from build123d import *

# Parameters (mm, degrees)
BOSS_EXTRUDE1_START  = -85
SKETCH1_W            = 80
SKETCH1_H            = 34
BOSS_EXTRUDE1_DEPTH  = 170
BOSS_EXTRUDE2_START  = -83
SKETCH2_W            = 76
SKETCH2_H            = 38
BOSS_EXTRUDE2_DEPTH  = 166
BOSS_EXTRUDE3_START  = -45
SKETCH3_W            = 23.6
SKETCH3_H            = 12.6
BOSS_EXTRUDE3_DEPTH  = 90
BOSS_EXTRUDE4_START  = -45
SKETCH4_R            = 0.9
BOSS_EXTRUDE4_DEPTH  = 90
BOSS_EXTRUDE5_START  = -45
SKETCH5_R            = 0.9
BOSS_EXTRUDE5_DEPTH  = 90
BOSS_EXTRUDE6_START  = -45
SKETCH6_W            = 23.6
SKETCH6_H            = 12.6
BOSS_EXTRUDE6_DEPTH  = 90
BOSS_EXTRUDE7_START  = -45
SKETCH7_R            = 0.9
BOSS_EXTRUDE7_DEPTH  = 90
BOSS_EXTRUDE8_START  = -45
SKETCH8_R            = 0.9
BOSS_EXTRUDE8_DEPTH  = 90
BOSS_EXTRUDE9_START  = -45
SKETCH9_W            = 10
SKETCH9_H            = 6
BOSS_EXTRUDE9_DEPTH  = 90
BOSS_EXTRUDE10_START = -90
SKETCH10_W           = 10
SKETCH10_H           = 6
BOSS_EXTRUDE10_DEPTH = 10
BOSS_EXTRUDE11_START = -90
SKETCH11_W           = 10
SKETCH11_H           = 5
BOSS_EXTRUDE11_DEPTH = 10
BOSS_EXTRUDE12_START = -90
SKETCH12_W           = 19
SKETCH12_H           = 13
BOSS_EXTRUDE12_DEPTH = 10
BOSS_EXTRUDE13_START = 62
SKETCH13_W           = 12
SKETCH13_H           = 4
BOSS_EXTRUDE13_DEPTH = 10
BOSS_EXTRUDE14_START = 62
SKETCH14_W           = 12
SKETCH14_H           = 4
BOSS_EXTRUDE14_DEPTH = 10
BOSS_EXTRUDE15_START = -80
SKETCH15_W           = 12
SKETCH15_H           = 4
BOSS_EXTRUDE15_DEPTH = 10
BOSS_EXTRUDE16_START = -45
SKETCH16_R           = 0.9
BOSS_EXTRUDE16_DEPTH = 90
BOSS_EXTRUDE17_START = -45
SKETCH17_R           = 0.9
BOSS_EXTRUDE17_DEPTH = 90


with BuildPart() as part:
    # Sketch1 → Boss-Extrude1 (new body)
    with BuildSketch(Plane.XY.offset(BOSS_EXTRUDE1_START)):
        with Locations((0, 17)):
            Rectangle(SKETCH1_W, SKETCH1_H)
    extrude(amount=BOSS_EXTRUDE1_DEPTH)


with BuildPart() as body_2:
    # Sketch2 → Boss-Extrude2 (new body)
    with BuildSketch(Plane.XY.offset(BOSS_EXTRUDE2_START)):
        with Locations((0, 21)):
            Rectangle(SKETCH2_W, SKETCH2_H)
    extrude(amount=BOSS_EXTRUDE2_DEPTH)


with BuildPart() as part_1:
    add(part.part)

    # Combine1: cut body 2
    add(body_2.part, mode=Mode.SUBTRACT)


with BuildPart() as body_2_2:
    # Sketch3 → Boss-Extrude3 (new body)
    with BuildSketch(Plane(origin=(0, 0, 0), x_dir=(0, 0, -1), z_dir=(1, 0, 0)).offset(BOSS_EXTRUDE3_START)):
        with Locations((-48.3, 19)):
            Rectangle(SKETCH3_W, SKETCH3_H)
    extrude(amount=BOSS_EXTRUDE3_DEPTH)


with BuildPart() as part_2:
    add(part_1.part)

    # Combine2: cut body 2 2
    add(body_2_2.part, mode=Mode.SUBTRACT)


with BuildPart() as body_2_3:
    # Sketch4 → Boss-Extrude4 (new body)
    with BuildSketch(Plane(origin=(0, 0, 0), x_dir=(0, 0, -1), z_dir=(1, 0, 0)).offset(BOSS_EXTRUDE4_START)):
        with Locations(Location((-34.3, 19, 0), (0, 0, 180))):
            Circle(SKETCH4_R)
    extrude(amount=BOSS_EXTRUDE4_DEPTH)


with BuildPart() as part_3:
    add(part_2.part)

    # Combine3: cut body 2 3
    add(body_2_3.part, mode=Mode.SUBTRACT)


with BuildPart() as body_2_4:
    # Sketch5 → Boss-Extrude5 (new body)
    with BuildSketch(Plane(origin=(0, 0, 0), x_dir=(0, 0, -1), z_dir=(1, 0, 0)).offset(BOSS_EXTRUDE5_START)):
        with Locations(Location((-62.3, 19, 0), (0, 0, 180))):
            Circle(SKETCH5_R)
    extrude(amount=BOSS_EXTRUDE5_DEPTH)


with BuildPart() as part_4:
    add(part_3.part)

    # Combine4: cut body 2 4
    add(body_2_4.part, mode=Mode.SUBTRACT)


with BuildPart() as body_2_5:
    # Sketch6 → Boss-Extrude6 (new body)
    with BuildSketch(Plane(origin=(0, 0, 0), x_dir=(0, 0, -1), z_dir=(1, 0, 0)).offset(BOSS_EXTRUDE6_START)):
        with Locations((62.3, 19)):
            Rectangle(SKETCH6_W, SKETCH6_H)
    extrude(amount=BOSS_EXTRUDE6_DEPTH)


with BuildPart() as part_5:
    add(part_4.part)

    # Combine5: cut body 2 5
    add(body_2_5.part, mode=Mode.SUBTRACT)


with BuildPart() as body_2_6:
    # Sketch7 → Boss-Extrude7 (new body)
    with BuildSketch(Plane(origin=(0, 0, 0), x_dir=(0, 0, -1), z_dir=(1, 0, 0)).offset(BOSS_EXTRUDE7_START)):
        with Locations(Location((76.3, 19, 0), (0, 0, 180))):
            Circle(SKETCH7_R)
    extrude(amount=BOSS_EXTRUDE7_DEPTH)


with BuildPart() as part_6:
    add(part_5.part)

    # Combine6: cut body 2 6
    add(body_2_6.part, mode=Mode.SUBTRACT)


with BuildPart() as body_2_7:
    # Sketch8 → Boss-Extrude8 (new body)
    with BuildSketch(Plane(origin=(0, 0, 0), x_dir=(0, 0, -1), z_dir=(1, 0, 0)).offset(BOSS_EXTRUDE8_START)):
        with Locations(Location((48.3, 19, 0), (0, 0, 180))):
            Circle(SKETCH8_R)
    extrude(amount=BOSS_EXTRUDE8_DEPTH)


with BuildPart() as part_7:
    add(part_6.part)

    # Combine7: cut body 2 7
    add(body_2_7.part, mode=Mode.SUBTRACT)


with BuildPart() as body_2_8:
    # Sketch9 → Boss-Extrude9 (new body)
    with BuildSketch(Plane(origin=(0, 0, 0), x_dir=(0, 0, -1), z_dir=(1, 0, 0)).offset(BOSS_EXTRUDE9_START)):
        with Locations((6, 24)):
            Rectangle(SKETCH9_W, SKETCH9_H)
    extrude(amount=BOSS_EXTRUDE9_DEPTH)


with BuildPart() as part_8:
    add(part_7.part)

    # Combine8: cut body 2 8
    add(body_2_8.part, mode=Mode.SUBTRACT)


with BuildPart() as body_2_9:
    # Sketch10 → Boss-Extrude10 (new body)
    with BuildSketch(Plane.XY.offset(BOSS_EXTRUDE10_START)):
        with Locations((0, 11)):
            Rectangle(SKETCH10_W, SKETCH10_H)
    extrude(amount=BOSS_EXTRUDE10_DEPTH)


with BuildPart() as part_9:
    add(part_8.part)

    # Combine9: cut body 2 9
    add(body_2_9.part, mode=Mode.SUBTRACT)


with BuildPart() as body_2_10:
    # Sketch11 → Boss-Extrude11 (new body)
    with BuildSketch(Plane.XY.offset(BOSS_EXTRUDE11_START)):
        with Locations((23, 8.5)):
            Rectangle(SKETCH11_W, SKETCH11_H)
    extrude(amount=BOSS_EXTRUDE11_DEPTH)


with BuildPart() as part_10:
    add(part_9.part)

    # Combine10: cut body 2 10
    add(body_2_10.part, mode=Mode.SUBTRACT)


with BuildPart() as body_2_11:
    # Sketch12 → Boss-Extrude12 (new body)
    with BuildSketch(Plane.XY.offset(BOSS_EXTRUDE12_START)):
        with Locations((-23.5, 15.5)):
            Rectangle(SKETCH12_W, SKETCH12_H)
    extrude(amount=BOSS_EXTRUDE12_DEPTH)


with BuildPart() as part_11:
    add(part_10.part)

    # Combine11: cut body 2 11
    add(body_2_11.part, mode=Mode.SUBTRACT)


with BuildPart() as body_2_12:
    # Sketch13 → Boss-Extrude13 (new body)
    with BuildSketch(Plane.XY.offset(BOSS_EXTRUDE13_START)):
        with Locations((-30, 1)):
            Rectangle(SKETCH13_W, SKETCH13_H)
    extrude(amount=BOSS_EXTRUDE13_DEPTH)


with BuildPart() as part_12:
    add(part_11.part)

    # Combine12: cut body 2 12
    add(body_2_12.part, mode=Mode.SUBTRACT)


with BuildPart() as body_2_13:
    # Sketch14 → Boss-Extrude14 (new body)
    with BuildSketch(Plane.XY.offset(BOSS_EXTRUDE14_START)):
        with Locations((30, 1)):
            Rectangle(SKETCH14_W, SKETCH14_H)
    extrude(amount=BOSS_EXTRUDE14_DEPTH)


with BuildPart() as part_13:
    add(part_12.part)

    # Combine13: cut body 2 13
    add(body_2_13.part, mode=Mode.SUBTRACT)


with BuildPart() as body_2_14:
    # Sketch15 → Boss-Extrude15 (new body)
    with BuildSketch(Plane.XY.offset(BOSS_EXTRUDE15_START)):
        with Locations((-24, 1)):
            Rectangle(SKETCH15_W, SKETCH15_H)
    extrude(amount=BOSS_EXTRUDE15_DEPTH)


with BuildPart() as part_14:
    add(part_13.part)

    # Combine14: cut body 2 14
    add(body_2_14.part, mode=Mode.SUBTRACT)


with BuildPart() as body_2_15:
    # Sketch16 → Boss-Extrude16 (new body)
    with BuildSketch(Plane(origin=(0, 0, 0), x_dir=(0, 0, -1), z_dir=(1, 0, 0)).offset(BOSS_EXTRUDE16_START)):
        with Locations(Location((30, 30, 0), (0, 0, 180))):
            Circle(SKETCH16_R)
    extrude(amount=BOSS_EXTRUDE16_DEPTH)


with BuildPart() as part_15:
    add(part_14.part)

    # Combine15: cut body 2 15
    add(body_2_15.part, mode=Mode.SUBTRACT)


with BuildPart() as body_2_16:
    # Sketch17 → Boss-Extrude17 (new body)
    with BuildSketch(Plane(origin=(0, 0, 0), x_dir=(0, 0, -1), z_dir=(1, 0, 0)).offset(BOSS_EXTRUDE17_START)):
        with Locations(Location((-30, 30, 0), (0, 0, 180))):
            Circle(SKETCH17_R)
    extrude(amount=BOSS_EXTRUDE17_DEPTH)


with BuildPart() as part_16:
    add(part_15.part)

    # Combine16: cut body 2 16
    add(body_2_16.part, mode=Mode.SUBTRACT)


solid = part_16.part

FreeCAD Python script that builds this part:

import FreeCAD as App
import Part
import Sketcher

V = App.Vector
Q = App.Units.Quantity


def add_polygon(sketch, points):
    """Adds a closed chain of lines whose ends are joined by coincident constraints."""
    first, n = sketch.GeometryCount, len(points)
    for a, b in zip(points, points[1:] + points[:1]):
        sketch.addGeometry(Part.LineSegment(App.Vector(*a, 0), App.Vector(*b, 0)), False)
    for i in range(n):
        sketch.addConstraint(Sketcher.Constraint("Coincident", first + i, 2, first + (i + 1) % n, 1))

doc = App.newDocument("Part")
body = doc.addObject("PartDesign::Body", "Body")

sketch1 = body.newObject("Sketcher::SketchObject", "Sketch")
sketch1.AttachmentSupport = (doc.getObject("XY_Plane"), [""])
sketch1.MapMode = "FlatFace"
sketch1.AttachmentOffset = App.Placement(V(0, 0, -85), App.Rotation())
add_polygon(sketch1, [(-40, 34), (-40, 0), (40, 0), (40, 34)])
sketch1.addConstraint([
    Sketcher.Constraint("Vertical", 0),
    Sketcher.Constraint("Horizontal", 1),
    Sketcher.Constraint("Vertical", 2),
    Sketcher.Constraint("Horizontal", 3),
    Sketcher.Constraint("Symmetric", 0, 2, 1, 2, -1, 1),
    Sketcher.Constraint("DistanceX", 1, 1, 1, 2, Q("80 mm")),
    Sketcher.Constraint("DistanceY", 0, 2, 0, 1, Q("34 mm")),
])
pad1 = body.newObject("PartDesign::Pad", "Pad")
pad1.Profile = sketch1
pad1.Length = 170
body2 = doc.addObject("PartDesign::Body", "Body001")

sketch2 = body2.newObject("Sketcher::SketchObject", "Sketch001")
sketch2.AttachmentSupport = (doc.getObject("XY_Plane001"), [""])
sketch2.MapMode = "FlatFace"
sketch2.AttachmentOffset = App.Placement(V(0, 0, -83), App.Rotation())
add_polygon(sketch2, [(-38, 40), (-38, 2), (38, 2), (38, 40)])
sketch2.addConstraint([
    Sketcher.Constraint("Vertical", 0),
    Sketcher.Constraint("Horizontal", 1),
    Sketcher.Constraint("Vertical", 2),
    Sketcher.Constraint("Horizontal", 3),
    Sketcher.Constraint("DistanceX", 1, 1, 1, 2, Q("76 mm")),
    Sketcher.Constraint("DistanceY", 0, 2, 0, 1, Q("38 mm")),
    Sketcher.Constraint("DistanceX", 0, 2, -1, 1, Q("38 mm")),
    Sketcher.Constraint("DistanceY", -1, 1, 0, 2, Q("2 mm")),
])
pad2 = body2.newObject("PartDesign::Pad", "Pad001")
pad2.Profile = sketch2
pad2.Length = 166
doc.recompute()

boolean = body.newObject("PartDesign::Boolean", "Boolean")
boolean.Type = "Cut"
boolean.addObjects([body2])
body3 = doc.addObject("PartDesign::Body", "Body002")

sketch3 = body3.newObject("Sketcher::SketchObject", "Sketch002")
sketch3.AttachmentSupport = (doc.getObject("YZ_Plane002"), [""])
sketch3.MapMode = "FlatFace"
sketch3.AttachmentOffset = App.Placement(V(0, 0, -45), App.Rotation())
add_polygon(sketch3, [(25, 60), (13, 60), (13, 36), (25, 36)])
sketch3.addConstraint([
    Sketcher.Constraint("Horizontal", 0),
    Sketcher.Constraint("Vertical", 1),
    Sketcher.Constraint("Horizontal", 2),
    Sketcher.Constraint("Vertical", 3),
    Sketcher.Constraint("DistanceX", 0, 2, 0, 1, Q("12.6 mm")),
    Sketcher.Constraint("DistanceY", 1, 2, 1, 1, Q("23.6 mm")),
    Sketcher.Constraint("DistanceX", -1, 1, 0, 2, Q("12.7 mm")),
    Sketcher.Constraint("DistanceY", -1, 1, 0, 2, Q("60.1 mm")),
])
pad3 = body3.newObject("PartDesign::Pad", "Pad002")
pad3.Profile = sketch3
pad3.Length = 90
doc.recompute()

boolean2 = body.newObject("PartDesign::Boolean", "Boolean001")
boolean2.Type = "Cut"
boolean2.addObjects([body3])
body4 = doc.addObject("PartDesign::Body", "Body003")

sketch4 = body4.newObject("Sketcher::SketchObject", "Sketch003")
sketch4.AttachmentSupport = (doc.getObject("YZ_Plane003"), [""])
sketch4.MapMode = "FlatFace"
sketch4.AttachmentOffset = App.Placement(V(0, 0, -45), App.Rotation())
sketch4.addGeometry(Part.Circle(V(19, 34.3, 0), V(0, 0, 1), 0.9), False)
sketch4.addConstraint([
    Sketcher.Constraint("Diameter", 0, Q("1.8 mm")),
    Sketcher.Constraint("DistanceX", -1, 1, 0, 3, Q("19 mm")),
    Sketcher.Constraint("DistanceY", -1, 1, 0, 3, Q("34.3 mm")),
])
pad4 = body4.newObject("PartDesign::Pad", "Pad003")
pad4.Profile = sketch4
pad4.Length = 90
doc.recompute()

boolean3 = body.newObject("PartDesign::Boolean", "Boolean002")
boolean3.Type = "Cut"
boolean3.addObjects([body4])
body5 = doc.addObject("PartDesign::Body", "Body004")

sketch5 = body5.newObject("Sketcher::SketchObject", "Sketch004")
sketch5.AttachmentSupport = (doc.getObject("YZ_Plane004"), [""])
sketch5.MapMode = "FlatFace"
sketch5.AttachmentOffset = App.Placement(V(0, 0, -45), App.Rotation())
sketch5.addGeometry(Part.Circle(V(19, 62.3, 0), V(0, 0, 1), 0.9), False)
sketch5.addConstraint([
    Sketcher.Constraint("Diameter", 0, Q("1.8 mm")),
    Sketcher.Constraint("DistanceX", -1, 1, 0, 3, Q("19 mm")),
    Sketcher.Constraint("DistanceY", -1, 1, 0, 3, Q("62.3 mm")),
])
pad5 = body5.newObject("PartDesign::Pad", "Pad004")
pad5.Profile = sketch5
pad5.Length = 90
doc.recompute()

boolean4 = body.newObject("PartDesign::Boolean", "Boolean003")
boolean4.Type = "Cut"
boolean4.addObjects([body5])
body6 = doc.addObject("PartDesign::Body", "Body005")

sketch6 = body6.newObject("Sketcher::SketchObject", "Sketch005")
sketch6.AttachmentSupport = (doc.getObject("YZ_Plane005"), [""])
sketch6.MapMode = "FlatFace"
sketch6.AttachmentOffset = App.Placement(V(0, 0, -45), App.Rotation())
add_polygon(sketch6, [(25, -50), (13, -50), (13, -74), (25, -74)])
sketch6.addConstraint([
    Sketcher.Constraint("Horizontal", 0),
    Sketcher.Constraint("Vertical", 1),
    Sketcher.Constraint("Horizontal", 2),
    Sketcher.Constraint("Vertical", 3),
    Sketcher.Constraint("DistanceX", 0, 2, 0, 1, Q("12.6 mm")),
    Sketcher.Constraint("DistanceY", 1, 2, 1, 1, Q("23.6 mm")),
    Sketcher.Constraint("DistanceX", -1, 1, 0, 2, Q("12.7 mm")),
    Sketcher.Constraint("DistanceY", 0, 2, -1, 1, Q("50.5 mm")),
])
pad6 = body6.newObject("PartDesign::Pad", "Pad005")
pad6.Profile = sketch6
pad6.Length = 90
doc.recompute()

boolean5 = body.newObject("PartDesign::Boolean", "Boolean004")
boolean5.Type = "Cut"
boolean5.addObjects([body6])
body7 = doc.addObject("PartDesign::Body", "Body006")

sketch7 = body7.newObject("Sketcher::SketchObject", "Sketch006")
sketch7.AttachmentSupport = (doc.getObject("YZ_Plane006"), [""])
sketch7.MapMode = "FlatFace"
sketch7.AttachmentOffset = App.Placement(V(0, 0, -45), App.Rotation())
sketch7.addGeometry(Part.Circle(V(19, -76.3, 0), V(0, 0, 1), 0.9), False)
sketch7.addConstraint([
    Sketcher.Constraint("Diameter", 0, Q("1.8 mm")),
    Sketcher.Constraint("DistanceX", -1, 1, 0, 3, Q("19 mm")),
    Sketcher.Constraint("DistanceY", 0, 3, -1, 1, Q("76.3 mm")),
])
pad7 = body7.newObject("PartDesign::Pad", "Pad006")
pad7.Profile = sketch7
pad7.Length = 90
doc.recompute()

boolean6 = body.newObject("PartDesign::Boolean", "Boolean005")
boolean6.Type = "Cut"
boolean6.addObjects([body7])
body8 = doc.addObject("PartDesign::Body", "Body007")

sketch8 = body8.newObject("Sketcher::SketchObject", "Sketch007")
sketch8.AttachmentSupport = (doc.getObject("YZ_Plane007"), [""])
sketch8.MapMode = "FlatFace"
sketch8.AttachmentOffset = App.Placement(V(0, 0, -45), App.Rotation())
sketch8.addGeometry(Part.Circle(V(19, -48.3, 0), V(0, 0, 1), 0.9), False)
sketch8.addConstraint([
    Sketcher.Constraint("Diameter", 0, Q("1.8 mm")),
    Sketcher.Constraint("DistanceX", -1, 1, 0, 3, Q("19 mm")),
    Sketcher.Constraint("DistanceY", 0, 3, -1, 1, Q("48.3 mm")),
])
pad8 = body8.newObject("PartDesign::Pad", "Pad007")
pad8.Profile = sketch8
pad8.Length = 90
doc.recompute()

boolean7 = body.newObject("PartDesign::Boolean", "Boolean006")
boolean7.Type = "Cut"
boolean7.addObjects([body8])
body9 = doc.addObject("PartDesign::Body", "Body008")

sketch9 = body9.newObject("Sketcher::SketchObject", "Sketch008")
sketch9.AttachmentSupport = (doc.getObject("YZ_Plane008"), [""])
sketch9.MapMode = "FlatFace"
sketch9.AttachmentOffset = App.Placement(V(0, 0, -45), App.Rotation())
add_polygon(sketch9, [(27, -1), (21, -1), (21, -11), (27, -11)])
sketch9.addConstraint([
    Sketcher.Constraint("Horizontal", 0),
    Sketcher.Constraint("Vertical", 1),
    Sketcher.Constraint("Horizontal", 2),
    Sketcher.Constraint("Vertical", 3),
    Sketcher.Constraint("DistanceX", 0, 2, 0, 1, Q("6 mm")),
    Sketcher.Constraint("DistanceY", 1, 2, 1, 1, Q("10 mm")),
    Sketcher.Constraint("DistanceX", -1, 1, 0, 2, Q("21 mm")),
    Sketcher.Constraint("DistanceY", 0, 2, -1, 1, Q("1 mm")),
])
pad9 = body9.newObject("PartDesign::Pad", "Pad008")
pad9.Profile = sketch9
pad9.Length = 90
doc.recompute()

boolean8 = body.newObject("PartDesign::Boolean", "Boolean007")
boolean8.Type = "Cut"
boolean8.addObjects([body9])
body10 = doc.addObject("PartDesign::Body", "Body009")

sketch10 = body10.newObject("Sketcher::SketchObject", "Sketch009")
sketch10.AttachmentSupport = (doc.getObject("XY_Plane009"), [""])
sketch10.MapMode = "FlatFace"
sketch10.AttachmentOffset = App.Placement(V(0, 0, -90), App.Rotation())
add_polygon(sketch10, [(-5, 14), (-5, 8), (5, 8), (5, 14)])
sketch10.addConstraint([
    Sketcher.Constraint("Vertical", 0),
    Sketcher.Constraint("Horizontal", 1),
    Sketcher.Constraint("Vertical", 2),
    Sketcher.Constraint("Horizontal", 3),
    Sketcher.Constraint("DistanceX", 1, 1, 1, 2, Q("10 mm")),
    Sketcher.Constraint("DistanceY", 0, 2, 0, 1, Q("6 mm")),
    Sketcher.Constraint("DistanceX", 0, 2, -1, 1, Q("5 mm")),
    Sketcher.Constraint("DistanceY", -1, 1, 0, 2, Q("8 mm")),
])
pad10 = body10.newObject("PartDesign::Pad", "Pad009")
pad10.Profile = sketch10
pad10.Length = 10
doc.recompute()

boolean9 = body.newObject("PartDesign::Boolean", "Boolean008")
boolean9.Type = "Cut"
boolean9.addObjects([body10])
body11 = doc.addObject("PartDesign::Body", "Body010")

sketch11 = body11.newObject("Sketcher::SketchObject", "Sketch010")
sketch11.AttachmentSupport = (doc.getObject("XY_Plane010"), [""])
sketch11.MapMode = "FlatFace"
sketch11.AttachmentOffset = App.Placement(V(0, 0, -90), App.Rotation())
add_polygon(sketch11, [(18, 11), (18, 6), (28, 6), (28, 11)])
sketch11.addConstraint([
    Sketcher.Constraint("Vertical", 0),
    Sketcher.Constraint("Horizontal", 1),
    Sketcher.Constraint("Vertical", 2),
    Sketcher.Constraint("Horizontal", 3),
    Sketcher.Constraint("DistanceX", 1, 1, 1, 2, Q("10 mm")),
    Sketcher.Constraint("DistanceY", 0, 2, 0, 1, Q("5 mm")),
    Sketcher.Constraint("DistanceX", -1, 1, 0, 2, Q("18 mm")),
    Sketcher.Constraint("DistanceY", -1, 1, 0, 2, Q("6 mm")),
])
pad11 = body11.newObject("PartDesign::Pad", "Pad010")
pad11.Profile = sketch11
pad11.Length = 10
doc.recompute()

boolean10 = body.newObject("PartDesign::Boolean", "Boolean009")
boolean10.Type = "Cut"
boolean10.addObjects([body11])
body12 = doc.addObject("PartDesign::Body", "Body011")

sketch12 = body12.newObject("Sketcher::SketchObject", "Sketch011")
sketch12.AttachmentSupport = (doc.getObject("XY_Plane011"), [""])
sketch12.MapMode = "FlatFace"
sketch12.AttachmentOffset = App.Placement(V(0, 0, -90), App.Rotation())
add_polygon(sketch12, [(-33, 22), (-33, 9), (-14, 9), (-14, 22)])
sketch12.addConstraint([
    Sketcher.Constraint("Vertical", 0),
    Sketcher.Constraint("Horizontal", 1),
    Sketcher.Constraint("Vertical", 2),
    Sketcher.Constraint("Horizontal", 3),
    Sketcher.Constraint("DistanceX", 1, 1, 1, 2, Q("19 mm")),
    Sketcher.Constraint("DistanceY", 0, 2, 0, 1, Q("13 mm")),
    Sketcher.Constraint("DistanceX", 0, 2, -1, 1, Q("33 mm")),
    Sketcher.Constraint("DistanceY", -1, 1, 0, 2, Q("9 mm")),
])
pad12 = body12.newObject("PartDesign::Pad", "Pad011")
pad12.Profile = sketch12
pad12.Length = 10
doc.recompute()

boolean11 = body.newObject("PartDesign::Boolean", "Boolean010")
boolean11.Type = "Cut"
boolean11.addObjects([body12])
body13 = doc.addObject("PartDesign::Body", "Body012")

sketch13 = body13.newObject("Sketcher::SketchObject", "Sketch012")
sketch13.AttachmentSupport = (doc.getObject("XY_Plane012"), [""])
sketch13.MapMode = "FlatFace"
sketch13.AttachmentOffset = App.Placement(V(0, 0, 62), App.Rotation())
add_polygon(sketch13, [(-36, 3), (-36, -1), (-24, -1), (-24, 3)])
sketch13.addConstraint([
    Sketcher.Constraint("Vertical", 0),
    Sketcher.Constraint("Horizontal", 1),
    Sketcher.Constraint("Vertical", 2),
    Sketcher.Constraint("Horizontal", 3),
    Sketcher.Constraint("DistanceX", 1, 1, 1, 2, Q("12 mm")),
    Sketcher.Constraint("DistanceY", 0, 2, 0, 1, Q("4 mm")),
    Sketcher.Constraint("DistanceX", 0, 2, -1, 1, Q("36 mm")),
    Sketcher.Constraint("DistanceY", 0, 2, -1, 1, Q("1 mm")),
])
pad13 = body13.newObject("PartDesign::Pad", "Pad012")
pad13.Profile = sketch13
pad13.Length = 10
doc.recompute()

boolean12 = body.newObject("PartDesign::Boolean", "Boolean011")
boolean12.Type = "Cut"
boolean12.addObjects([body13])
body14 = doc.addObject("PartDesign::Body", "Body013")

sketch14 = body14.newObject("Sketcher::SketchObject", "Sketch013")
sketch14.AttachmentSupport = (doc.getObject("XY_Plane013"), [""])
sketch14.MapMode = "FlatFace"
sketch14.AttachmentOffset = App.Placement(V(0, 0, 62), App.Rotation())
add_polygon(sketch14, [(24, 3), (24, -1), (36, -1), (36, 3)])
sketch14.addConstraint([
    Sketcher.Constraint("Vertical", 0),
    Sketcher.Constraint("Horizontal", 1),
    Sketcher.Constraint("Vertical", 2),
    Sketcher.Constraint("Horizontal", 3),
    Sketcher.Constraint("DistanceX", 1, 1, 1, 2, Q("12 mm")),
    Sketcher.Constraint("DistanceY", 0, 2, 0, 1, Q("4 mm")),
    Sketcher.Constraint("DistanceX", -1, 1, 0, 2, Q("24 mm")),
    Sketcher.Constraint("DistanceY", 0, 2, -1, 1, Q("1 mm")),
])
pad14 = body14.newObject("PartDesign::Pad", "Pad013")
pad14.Profile = sketch14
pad14.Length = 10
doc.recompute()

boolean13 = body.newObject("PartDesign::Boolean", "Boolean012")
boolean13.Type = "Cut"
boolean13.addObjects([body14])
body15 = doc.addObject("PartDesign::Body", "Body014")

sketch15 = body15.newObject("Sketcher::SketchObject", "Sketch014")
sketch15.AttachmentSupport = (doc.getObject("XY_Plane014"), [""])
sketch15.MapMode = "FlatFace"
sketch15.AttachmentOffset = App.Placement(V(0, 0, -80), App.Rotation())
add_polygon(sketch15, [(-30, 3), (-30, -1), (-18, -1), (-18, 3)])
sketch15.addConstraint([
    Sketcher.Constraint("Vertical", 0),
    Sketcher.Constraint("Horizontal", 1),
    Sketcher.Constraint("Vertical", 2),
    Sketcher.Constraint("Horizontal", 3),
    Sketcher.Constraint("DistanceX", 1, 1, 1, 2, Q("12 mm")),
    Sketcher.Constraint("DistanceY", 0, 2, 0, 1, Q("4 mm")),
    Sketcher.Constraint("DistanceX", 0, 2, -1, 1, Q("30 mm")),
    Sketcher.Constraint("DistanceY", 0, 2, -1, 1, Q("1 mm")),
])
pad15 = body15.newObject("PartDesign::Pad", "Pad014")
pad15.Profile = sketch15
pad15.Length = 10
doc.recompute()

boolean14 = body.newObject("PartDesign::Boolean", "Boolean013")
boolean14.Type = "Cut"
boolean14.addObjects([body15])
body16 = doc.addObject("PartDesign::Body", "Body015")

sketch16 = body16.newObject("Sketcher::SketchObject", "Sketch015")
sketch16.AttachmentSupport = (doc.getObject("YZ_Plane015"), [""])
sketch16.MapMode = "FlatFace"
sketch16.AttachmentOffset = App.Placement(V(0, 0, -45), App.Rotation())
sketch16.addGeometry(Part.Circle(V(30, -30, 0), V(0, 0, 1), 0.9), False)
sketch16.addConstraint([
    Sketcher.Constraint("Diameter", 0, Q("1.8 mm")),
    Sketcher.Constraint("DistanceX", -1, 1, 0, 3, Q("30 mm")),
    Sketcher.Constraint("DistanceY", 0, 3, -1, 1, Q("30 mm")),
])
pad16 = body16.newObject("PartDesign::Pad", "Pad015")
pad16.Profile = sketch16
pad16.Length = 90
doc.recompute()

boolean15 = body.newObject("PartDesign::Boolean", "Boolean014")
boolean15.Type = "Cut"
boolean15.addObjects([body16])
body17 = doc.addObject("PartDesign::Body", "Body016")

sketch17 = body17.newObject("Sketcher::SketchObject", "Sketch016")
sketch17.AttachmentSupport = (doc.getObject("YZ_Plane016"), [""])
sketch17.MapMode = "FlatFace"
sketch17.AttachmentOffset = App.Placement(V(0, 0, -45), App.Rotation())
sketch17.addGeometry(Part.Circle(V(30, 30, 0), V(0, 0, 1), 0.9), False)
sketch17.addConstraint([
    Sketcher.Constraint("Diameter", 0, Q("1.8 mm")),
    Sketcher.Constraint("DistanceX", -1, 1, 0, 3, Q("30 mm")),
    Sketcher.Constraint("DistanceY", -1, 1, 0, 3, Q("30 mm")),
])
pad17 = body17.newObject("PartDesign::Pad", "Pad016")
pad17.Profile = sketch17
pad17.Length = 90
doc.recompute()

boolean16 = body.newObject("PartDesign::Boolean", "Boolean015")
boolean16.Type = "Cut"
boolean16.addObjects([body17])

doc.recompute()
